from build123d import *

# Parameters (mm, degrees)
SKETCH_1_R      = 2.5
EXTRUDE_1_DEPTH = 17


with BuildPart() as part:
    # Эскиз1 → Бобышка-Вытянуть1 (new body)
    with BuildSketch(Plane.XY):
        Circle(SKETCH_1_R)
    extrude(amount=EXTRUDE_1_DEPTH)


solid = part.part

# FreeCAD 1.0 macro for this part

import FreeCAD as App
import Part
import Sketcher
Q = App.Units.Quantity

doc = App.newDocument("Part")
params = doc.addObject("Spreadsheet::Sheet", "Params")
for row, (alias, value) in enumerate([
    ("sketch1_diameter", "5 mm"),
    ("pad1_length", "17 mm"),
], start=1):
    params.set(f"A{row}", alias)
    params.set(f"B{row}", "=" + value)
    params.setAlias(f"B{row}", alias)

body = doc.addObject("PartDesign::Body", "Body")

sketch1 = body.newObject("Sketcher::SketchObject", "Sketch")
sketch1.AttachmentSupport = (doc.getObject("XY_Plane"), [""])
sketch1.MapMode = "FlatFace"
sketch1.addGeometry(Part.Circle(App.Vector(0, 0, 0), App.Vector(0, 0, 1), 2.5), False)
sketch1.addConstraint([
    Sketcher.Constraint("Coincident", 0, 3, -1, 1),
    Sketcher.Constraint("Diameter", 0, Q("5 mm")),
])
sketch1.setExpression("Constraints[1]", "Params.sketch1_diameter")
pad1 = body.newObject("PartDesign::Pad", "Pad")
pad1.Profile = sketch1
pad1.setExpression("Length", "Params.pad1_length")

doc.recompute()
